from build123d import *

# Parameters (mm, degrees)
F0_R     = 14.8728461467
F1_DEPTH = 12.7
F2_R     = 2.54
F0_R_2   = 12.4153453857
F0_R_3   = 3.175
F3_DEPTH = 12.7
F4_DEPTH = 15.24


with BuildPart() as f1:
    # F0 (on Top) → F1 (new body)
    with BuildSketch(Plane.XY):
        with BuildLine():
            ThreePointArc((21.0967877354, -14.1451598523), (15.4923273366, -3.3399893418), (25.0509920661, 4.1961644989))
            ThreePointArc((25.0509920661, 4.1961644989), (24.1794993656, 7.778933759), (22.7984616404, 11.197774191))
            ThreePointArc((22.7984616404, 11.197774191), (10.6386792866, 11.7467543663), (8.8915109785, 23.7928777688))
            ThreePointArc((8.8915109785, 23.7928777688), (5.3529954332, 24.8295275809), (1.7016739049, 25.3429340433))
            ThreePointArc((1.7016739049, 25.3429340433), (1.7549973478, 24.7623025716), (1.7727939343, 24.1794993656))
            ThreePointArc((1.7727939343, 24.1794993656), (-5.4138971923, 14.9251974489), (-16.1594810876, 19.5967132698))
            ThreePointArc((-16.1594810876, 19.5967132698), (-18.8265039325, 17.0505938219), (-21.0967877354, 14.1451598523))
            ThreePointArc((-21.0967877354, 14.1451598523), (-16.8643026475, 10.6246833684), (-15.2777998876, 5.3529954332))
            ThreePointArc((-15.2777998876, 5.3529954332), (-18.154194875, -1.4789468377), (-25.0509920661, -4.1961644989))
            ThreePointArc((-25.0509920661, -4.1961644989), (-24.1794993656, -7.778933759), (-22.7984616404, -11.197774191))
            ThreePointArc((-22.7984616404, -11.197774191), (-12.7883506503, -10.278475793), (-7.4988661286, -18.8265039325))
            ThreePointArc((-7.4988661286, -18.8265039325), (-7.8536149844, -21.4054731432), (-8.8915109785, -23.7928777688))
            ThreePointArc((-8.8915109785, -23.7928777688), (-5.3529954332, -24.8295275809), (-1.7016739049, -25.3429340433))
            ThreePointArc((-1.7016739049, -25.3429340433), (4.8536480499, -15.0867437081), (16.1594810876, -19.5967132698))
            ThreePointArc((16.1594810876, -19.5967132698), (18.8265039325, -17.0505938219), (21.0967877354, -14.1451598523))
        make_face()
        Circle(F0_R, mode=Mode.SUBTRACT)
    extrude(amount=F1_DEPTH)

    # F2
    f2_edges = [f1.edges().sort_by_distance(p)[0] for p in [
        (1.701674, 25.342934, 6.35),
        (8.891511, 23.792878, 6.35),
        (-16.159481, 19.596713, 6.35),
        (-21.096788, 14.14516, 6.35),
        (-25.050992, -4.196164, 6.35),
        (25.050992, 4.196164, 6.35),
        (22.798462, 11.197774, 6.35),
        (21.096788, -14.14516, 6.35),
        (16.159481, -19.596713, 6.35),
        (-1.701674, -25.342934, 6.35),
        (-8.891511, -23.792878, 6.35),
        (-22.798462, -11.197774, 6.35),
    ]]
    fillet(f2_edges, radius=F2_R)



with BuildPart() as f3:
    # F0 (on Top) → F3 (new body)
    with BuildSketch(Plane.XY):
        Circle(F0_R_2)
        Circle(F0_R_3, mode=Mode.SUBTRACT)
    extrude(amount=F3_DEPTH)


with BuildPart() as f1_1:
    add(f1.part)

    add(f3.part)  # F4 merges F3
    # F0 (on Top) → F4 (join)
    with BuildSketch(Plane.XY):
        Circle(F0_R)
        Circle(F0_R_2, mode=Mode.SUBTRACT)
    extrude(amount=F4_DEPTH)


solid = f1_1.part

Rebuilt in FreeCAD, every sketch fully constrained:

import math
import FreeCAD as App
import Part
import Sketcher
Q = App.Units.Quantity


def edges_at(feature, points):
    """Names of the edges that pass closest to the given points."""
    edges = feature.Shape.Edges
    near = lambda p: min(range(len(edges)), key=lambda i: edges[i].distToShape(Part.Vertex(*p))[0])
    return sorted({f"Edge{near(p) + 1}" for p in points})

doc = App.newDocument("Part")
body = doc.addObject("PartDesign::Body", "Body")

# Sketch on XY plane
sketch1 = doc.addObject("Sketcher::SketchObject", "Sketch")
body.addObject(sketch1)
sketch1.AttachmentSupport = (doc.XY_Plane, [""])
sketch1.MapMode = "FlatFace"
sketch1.addGeometry([
    Part.ArcOfCircle(Part.Circle(App.Vector(24.8, -5.4, 0), App.Vector(0, 0, 1), 9.6), math.radians(89), math.radians(247)),  # 0
    Part.ArcOfCircle(Part.Circle(App.Vector(0, 0, 0), App.Vector(0, 0, 1), 25.4), math.radians(9.51), math.radians(26.16)),  # 1
    Part.ArcOfCircle(Part.Circle(App.Vector(17.1, 18.8, 0), App.Vector(0, 0, 1), 9.6), math.radians(149), math.radians(307)),  # 2
    Part.ArcOfCircle(Part.Circle(App.Vector(0, 0, 0), App.Vector(0, 0, 1), 25.4), math.radians(69.51), math.radians(86.16)),  # 3
    Part.ArcOfCircle(Part.Circle(App.Vector(-7.8, 24.2, 0), App.Vector(0, 0, 1), 9.6), math.radians(0), math.radians(7)),  # 4
    Part.ArcOfCircle(Part.Circle(App.Vector(-7.8, 24.2, 0), App.Vector(0, 0, 1), 9.6), math.radians(-151), math.radians(0)),  # 5
    Part.ArcOfCircle(Part.Circle(App.Vector(0, 0, 0), App.Vector(0, 0, 1), 25.4), math.radians(129.51), math.radians(146.16)),  # 6
    Part.ArcOfCircle(Part.Circle(App.Vector(-24.8, 5.4, 0), App.Vector(0, 0, 1), 9.6), math.radians(0), math.radians(67)),  # 7
    Part.ArcOfCircle(Part.Circle(App.Vector(-24.8, 5.4, 0), App.Vector(0, 0, 1), 9.6), math.radians(-91), math.radians(0)),  # 8
    Part.ArcOfCircle(Part.Circle(App.Vector(0, 0, 0), App.Vector(0, 0, 1), 25.4), math.radians(-170.49), math.radians(-153.84)),  # 9
    Part.ArcOfCircle(Part.Circle(App.Vector(-17.1, -18.8, 0), App.Vector(0, 0, 1), 9.6), math.radians(0), math.radians(127)),  # 10
    Part.ArcOfCircle(Part.Circle(App.Vector(-17.1, -18.8, 0), App.Vector(0, 0, 1), 9.6), math.radians(-31), math.radians(0)),  # 11
    Part.ArcOfCircle(Part.Circle(App.Vector(0, 0, 0), App.Vector(0, 0, 1), 25.4), math.radians(-110.49), math.radians(-93.84)),  # 12
    Part.ArcOfCircle(Part.Circle(App.Vector(7.8, -24.2, 0), App.Vector(0, 0, 1), 9.6), math.radians(29), math.radians(187)),  # 13
    Part.ArcOfCircle(Part.Circle(App.Vector(0, 0, 0), App.Vector(0, 0, 1), 25.4), math.radians(-50.49), math.radians(-33.84)),  # 14
    Part.Circle(App.Vector(0, 0, 0), App.Vector(0, 0, 1), 14.9),  # 15
], False)
sketch1.addConstraint([
    Sketcher.Constraint("Coincident", 0, 1, 1, 1),
    Sketcher.Constraint("Coincident", 1, 2, 2, 2),
    Sketcher.Constraint("Coincident", 2, 1, 3, 1),
    Sketcher.Constraint("Coincident", 3, 2, 4, 2),
    Sketcher.Constraint("Tangent", 4, 1, 5, 2),
    Sketcher.Constraint("Coincident", 5, 1, 6, 1),
    Sketcher.Constraint("Coincident", 6, 2, 7, 2),
    Sketcher.Constraint("Tangent", 7, 1, 8, 2),
    Sketcher.Constraint("Coincident", 8, 1, 9, 1),
    Sketcher.Constraint("Coincident", 9, 2, 10, 2),
    Sketcher.Constraint("Tangent", 10, 1, 11, 2),
    Sketcher.Constraint("Coincident", 11, 1, 12, 1),
    Sketcher.Constraint("Coincident", 12, 2, 13, 2),
    Sketcher.Constraint("Coincident", 13, 1, 14, 1),
    Sketcher.Constraint("Coincident", 14, 2, 0, 2),
    Sketcher.Constraint("Coincident", 1, 3, -1, 1),
    Sketcher.Constraint("Coincident", 3, 3, -1, 1),
    Sketcher.Constraint("Coincident", 6, 3, -1, 1),
    Sketcher.Constraint("Coincident", 9, 3, -1, 1),
    Sketcher.Constraint("Coincident", 12, 3, -1, 1),
    Sketcher.Constraint("Coincident", 14, 3, -1, 1),
    Sketcher.Constraint("Coincident", 15, 3, -1, 1),
    Sketcher.Constraint("Equal", 0, 2),
    Sketcher.Constraint("Equal", 1, 3),
    Sketcher.Constraint("Equal", 2, 4),
    Sketcher.Constraint("Equal", 4, 5),
    Sketcher.Constraint("Equal", 3, 6),
    Sketcher.Constraint("Equal", 5, 7),
    Sketcher.Constraint("Equal", 7, 8),
    Sketcher.Constraint("Equal", 6, 9),
    Sketcher.Constraint("Equal", 8, 10),
    Sketcher.Constraint("Equal", 10, 11),
    Sketcher.Constraint("Equal", 9, 12),
    Sketcher.Constraint("Equal", 11, 13),
    Sketcher.Constraint("Equal", 12, 14),
    Sketcher.Constraint("Symmetric", 0, 3, 7, 3, -1, 1),
    Sketcher.Constraint("Symmetric", 2, 3, 10, 3, -1, 1),
    Sketcher.Constraint("Symmetric", 4, 3, 13, 3, -1, 1),
    Sketcher.Constraint("Horizontal", 5, 3, 4, 1),
    Sketcher.Constraint("Horizontal", 8, 3, 7, 1),
    Sketcher.Constraint("Horizontal", 11, 3, 10, 1),
    Sketcher.Constraint("Radius", 1, Q("1 in")),
    Sketcher.Constraint("Diameter", 15, 29.745692),
    Sketcher.Constraint("DistanceX", 5, 1, -1, 1, Q("0.6362 in")),
    Sketcher.Constraint("Radius", 0, 9.551728),
    Sketcher.Constraint("DistanceX", 3, 2, 4, 1, Q("0.0028 in")),
    Sketcher.Constraint("DistanceX", 7, 1, -1, 1, 15.2778),
    Sketcher.Constraint("DistanceY", 0, 3, 2, 3, 24.179499),
    Sketcher.Constraint("DistanceX", 2, 3, 0, 1, 8.000398),
    Sketcher.Constraint("DistanceX", 4, 1, 2, 3, 15.2778),
])
pad1 = doc.addObject("PartDesign::Pad", "Pad")
body.addObject(pad1)
pad1.Profile = sketch1
pad1.Length = Q("0.5 in")
doc.recompute()

fillet = doc.addObject("PartDesign::Fillet", "Fillet")
body.addObject(fillet)
fillet.Base = (pad1, edges_at(pad1, [
    (1.702, 25.343, 6.35),
    (8.892, 23.793, 6.35),
    (-16.159, 19.597, 6.35),
    (-21.097, 14.145, 6.35),
    (-25.051, -4.196, 6.35),
    (25.051, 4.196, 6.35),
    (22.798, 11.198, 6.35),
    (21.097, -14.145, 6.35),
    (16.159, -19.597, 6.35),
    (-1.702, -25.343, 6.35),
    (-8.892, -23.793, 6.35),
    (-22.798, -11.198, 6.35),
]))
fillet.Radius = Q("0.1 in")
body2 = doc.addObject("PartDesign::Body", "Body001")

# Sketch on XY plane
sketch2 = doc.addObject("Sketcher::SketchObject", "Sketch001")
body2.addObject(sketch2)
sketch2.AttachmentSupport = (doc.getObject("XY_Plane001"), [""])
sketch2.MapMode = "FlatFace"
sketch2.addGeometry([
    Part.Circle(App.Vector(0, 0, 0), App.Vector(0, 0, 1), 12.4),
    Part.Circle(App.Vector(0, 0, 0), App.Vector(0, 0, 1), 3.2),
], False)
sketch2.addConstraint([
    Sketcher.Constraint("Coincident", 0, 3, -1, 1),
    Sketcher.Constraint("Coincident", 1, 3, -1, 1),
    Sketcher.Constraint("Diameter", 1, Q("0.25 in")),
    Sketcher.Constraint("Diameter", 0, 24.830691),
])
pad2 = doc.addObject("PartDesign::Pad", "Pad001")
body2.addObject(pad2)
pad2.Profile = sketch2
pad2.Length = Q("0.5 in")
body.AllowCompound = True
doc.recompute()

boolean = doc.addObject("PartDesign::Boolean", "Boolean")
body.addObject(boolean)
boolean.Type = "Fuse"
boolean.addObjects([body2])

# Sketch on XY plane
sketch3 = doc.addObject("Sketcher::SketchObject", "Sketch002")
body.addObject(sketch3)
sketch3.AttachmentSupport = (doc.XY_Plane, [""])
sketch3.MapMode = "FlatFace"
sketch3.addGeometry([
    Part.Circle(App.Vector(0, 0, 0), App.Vector(0, 0, 1), 15),
    Part.Circle(App.Vector(0, 0, 0), App.Vector(0, 0, 1), 12),
], False)
sketch3.addConstraint([
    Sketcher.Constraint("Coincident", 0, 3, -1, 1),
    Sketcher.Constraint("Coincident", 1, 3, -1, 1),
    Sketcher.Constraint("Diameter", 1, 24.830691),
    Sketcher.Constraint("Diameter", 0, 29.745692),
])
pad3 = doc.addObject("PartDesign::Pad", "Pad002")
body.addObject(pad3)
pad3.Profile = sketch3
pad3.Length = Q("0.6 in")

doc.recompute()
